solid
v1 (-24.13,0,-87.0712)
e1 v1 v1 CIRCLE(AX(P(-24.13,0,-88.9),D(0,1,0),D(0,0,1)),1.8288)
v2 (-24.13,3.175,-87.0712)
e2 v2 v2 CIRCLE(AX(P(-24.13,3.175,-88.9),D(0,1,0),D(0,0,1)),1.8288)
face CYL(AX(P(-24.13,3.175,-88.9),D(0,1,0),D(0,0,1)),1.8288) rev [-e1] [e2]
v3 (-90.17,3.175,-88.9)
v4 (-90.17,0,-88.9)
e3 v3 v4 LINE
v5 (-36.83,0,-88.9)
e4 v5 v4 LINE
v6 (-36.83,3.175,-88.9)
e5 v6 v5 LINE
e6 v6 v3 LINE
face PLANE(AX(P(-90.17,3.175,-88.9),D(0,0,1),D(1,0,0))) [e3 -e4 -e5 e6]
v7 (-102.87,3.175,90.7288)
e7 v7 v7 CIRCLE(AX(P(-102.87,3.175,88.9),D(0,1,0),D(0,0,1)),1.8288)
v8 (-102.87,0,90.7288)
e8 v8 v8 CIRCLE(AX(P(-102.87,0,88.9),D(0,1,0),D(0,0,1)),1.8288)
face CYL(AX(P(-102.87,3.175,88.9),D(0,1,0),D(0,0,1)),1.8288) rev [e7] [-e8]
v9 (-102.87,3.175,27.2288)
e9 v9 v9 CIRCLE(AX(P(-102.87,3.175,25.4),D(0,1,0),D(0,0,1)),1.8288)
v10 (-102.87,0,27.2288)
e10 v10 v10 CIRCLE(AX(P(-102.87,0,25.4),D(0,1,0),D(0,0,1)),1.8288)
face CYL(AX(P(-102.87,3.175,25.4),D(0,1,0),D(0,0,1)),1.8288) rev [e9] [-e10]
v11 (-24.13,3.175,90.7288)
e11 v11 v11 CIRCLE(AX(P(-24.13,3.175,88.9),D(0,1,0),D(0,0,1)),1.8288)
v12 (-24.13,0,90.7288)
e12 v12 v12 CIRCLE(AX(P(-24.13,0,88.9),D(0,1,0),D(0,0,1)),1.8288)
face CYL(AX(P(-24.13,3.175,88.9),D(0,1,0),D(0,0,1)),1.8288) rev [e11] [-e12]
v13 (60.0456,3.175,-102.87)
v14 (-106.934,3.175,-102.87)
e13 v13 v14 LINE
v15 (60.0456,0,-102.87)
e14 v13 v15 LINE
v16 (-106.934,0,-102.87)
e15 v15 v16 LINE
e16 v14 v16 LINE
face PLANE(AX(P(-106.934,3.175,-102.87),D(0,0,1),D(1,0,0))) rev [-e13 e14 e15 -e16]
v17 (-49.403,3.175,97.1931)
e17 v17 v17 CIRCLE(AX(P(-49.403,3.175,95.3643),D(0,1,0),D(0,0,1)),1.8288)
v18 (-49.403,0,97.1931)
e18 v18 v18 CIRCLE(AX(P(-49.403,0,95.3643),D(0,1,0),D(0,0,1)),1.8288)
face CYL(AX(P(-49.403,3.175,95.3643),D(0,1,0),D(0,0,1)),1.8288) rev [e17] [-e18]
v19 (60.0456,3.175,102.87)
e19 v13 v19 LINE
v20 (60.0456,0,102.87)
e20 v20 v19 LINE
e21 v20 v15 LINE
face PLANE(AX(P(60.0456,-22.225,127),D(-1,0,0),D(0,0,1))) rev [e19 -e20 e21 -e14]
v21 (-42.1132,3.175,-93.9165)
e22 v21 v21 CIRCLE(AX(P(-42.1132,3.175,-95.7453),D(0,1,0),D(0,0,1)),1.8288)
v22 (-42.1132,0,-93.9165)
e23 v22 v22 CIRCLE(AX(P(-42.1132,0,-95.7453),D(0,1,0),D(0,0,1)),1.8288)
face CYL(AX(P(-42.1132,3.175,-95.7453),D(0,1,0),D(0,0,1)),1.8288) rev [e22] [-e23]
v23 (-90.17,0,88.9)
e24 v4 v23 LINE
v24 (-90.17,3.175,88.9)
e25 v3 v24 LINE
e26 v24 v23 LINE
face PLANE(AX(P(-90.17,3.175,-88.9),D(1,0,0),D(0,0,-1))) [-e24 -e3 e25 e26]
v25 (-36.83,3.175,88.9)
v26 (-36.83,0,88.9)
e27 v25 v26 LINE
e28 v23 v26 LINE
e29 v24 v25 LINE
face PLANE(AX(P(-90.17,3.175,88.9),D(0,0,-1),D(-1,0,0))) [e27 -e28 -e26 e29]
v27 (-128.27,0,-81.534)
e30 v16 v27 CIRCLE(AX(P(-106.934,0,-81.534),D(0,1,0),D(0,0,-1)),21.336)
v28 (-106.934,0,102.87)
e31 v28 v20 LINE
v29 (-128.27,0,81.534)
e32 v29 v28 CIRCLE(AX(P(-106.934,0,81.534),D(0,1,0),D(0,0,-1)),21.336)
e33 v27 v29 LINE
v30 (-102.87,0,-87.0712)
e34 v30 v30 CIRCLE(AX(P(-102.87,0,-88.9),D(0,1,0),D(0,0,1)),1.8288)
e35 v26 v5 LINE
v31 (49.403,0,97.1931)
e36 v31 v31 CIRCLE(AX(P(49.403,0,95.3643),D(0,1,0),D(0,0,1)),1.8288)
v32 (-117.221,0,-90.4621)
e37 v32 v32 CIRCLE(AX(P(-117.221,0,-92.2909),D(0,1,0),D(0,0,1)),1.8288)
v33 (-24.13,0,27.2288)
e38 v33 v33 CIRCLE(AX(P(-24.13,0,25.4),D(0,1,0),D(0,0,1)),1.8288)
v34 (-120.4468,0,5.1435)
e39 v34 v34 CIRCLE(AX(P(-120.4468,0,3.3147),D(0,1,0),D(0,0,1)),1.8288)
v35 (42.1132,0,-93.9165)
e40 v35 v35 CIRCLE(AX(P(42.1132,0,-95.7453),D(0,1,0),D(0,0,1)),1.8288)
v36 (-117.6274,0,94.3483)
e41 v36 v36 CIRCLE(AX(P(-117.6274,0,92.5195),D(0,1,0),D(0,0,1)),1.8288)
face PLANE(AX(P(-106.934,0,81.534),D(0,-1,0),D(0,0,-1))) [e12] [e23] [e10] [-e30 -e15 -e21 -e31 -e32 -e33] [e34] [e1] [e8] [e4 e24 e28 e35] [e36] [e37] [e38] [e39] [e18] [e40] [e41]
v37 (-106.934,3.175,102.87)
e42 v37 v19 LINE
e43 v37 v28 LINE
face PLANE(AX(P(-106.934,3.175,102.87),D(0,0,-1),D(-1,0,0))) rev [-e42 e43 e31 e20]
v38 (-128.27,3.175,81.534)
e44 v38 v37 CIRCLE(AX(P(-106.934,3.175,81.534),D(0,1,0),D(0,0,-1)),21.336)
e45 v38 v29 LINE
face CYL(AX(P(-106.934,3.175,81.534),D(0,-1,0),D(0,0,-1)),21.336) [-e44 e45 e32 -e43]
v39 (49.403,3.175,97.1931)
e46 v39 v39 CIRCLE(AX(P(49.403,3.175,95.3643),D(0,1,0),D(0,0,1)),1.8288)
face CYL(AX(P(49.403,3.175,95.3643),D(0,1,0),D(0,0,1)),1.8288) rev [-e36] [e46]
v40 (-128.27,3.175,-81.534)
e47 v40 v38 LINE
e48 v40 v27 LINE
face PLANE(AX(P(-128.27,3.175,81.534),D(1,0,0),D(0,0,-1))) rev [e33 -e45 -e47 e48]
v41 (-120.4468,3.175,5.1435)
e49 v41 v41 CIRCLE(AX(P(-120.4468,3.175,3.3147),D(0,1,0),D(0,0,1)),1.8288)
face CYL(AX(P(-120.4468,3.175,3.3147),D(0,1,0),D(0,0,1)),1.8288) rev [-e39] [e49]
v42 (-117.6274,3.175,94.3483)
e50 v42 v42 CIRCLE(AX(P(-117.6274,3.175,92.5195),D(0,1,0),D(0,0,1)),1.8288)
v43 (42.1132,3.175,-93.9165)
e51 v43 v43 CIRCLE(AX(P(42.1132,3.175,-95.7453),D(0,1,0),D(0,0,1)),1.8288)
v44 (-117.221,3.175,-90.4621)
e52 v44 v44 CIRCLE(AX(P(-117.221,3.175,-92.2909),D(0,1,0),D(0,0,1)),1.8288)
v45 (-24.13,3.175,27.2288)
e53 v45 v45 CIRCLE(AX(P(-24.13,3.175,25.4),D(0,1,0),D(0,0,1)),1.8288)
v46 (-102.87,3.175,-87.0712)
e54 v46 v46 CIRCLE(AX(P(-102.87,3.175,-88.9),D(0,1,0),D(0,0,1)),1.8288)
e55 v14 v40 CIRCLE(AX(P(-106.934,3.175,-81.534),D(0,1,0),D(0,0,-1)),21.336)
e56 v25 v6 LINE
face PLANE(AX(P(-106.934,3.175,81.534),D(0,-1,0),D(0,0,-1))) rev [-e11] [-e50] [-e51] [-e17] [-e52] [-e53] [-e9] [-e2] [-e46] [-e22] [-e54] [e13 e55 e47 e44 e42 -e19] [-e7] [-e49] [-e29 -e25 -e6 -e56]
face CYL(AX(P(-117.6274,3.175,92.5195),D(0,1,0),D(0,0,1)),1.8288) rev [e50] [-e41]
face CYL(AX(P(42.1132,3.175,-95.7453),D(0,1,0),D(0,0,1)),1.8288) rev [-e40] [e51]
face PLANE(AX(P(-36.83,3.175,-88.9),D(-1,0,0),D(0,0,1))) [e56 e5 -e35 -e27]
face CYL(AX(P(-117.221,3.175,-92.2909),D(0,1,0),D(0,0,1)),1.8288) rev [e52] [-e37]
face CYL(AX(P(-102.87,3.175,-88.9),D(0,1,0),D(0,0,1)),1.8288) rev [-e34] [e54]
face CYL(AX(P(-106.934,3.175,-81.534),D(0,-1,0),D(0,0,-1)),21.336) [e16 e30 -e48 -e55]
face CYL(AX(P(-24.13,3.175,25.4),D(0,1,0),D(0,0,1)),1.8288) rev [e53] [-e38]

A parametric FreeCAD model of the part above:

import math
import FreeCAD as App
import Part
import Sketcher
from FreeCAD import Vector
Q = App.Units.Quantity


def add_polygon(sketch, points):
    """Adds a closed chain of lines whose ends are joined by coincident constraints."""
    first, n = sketch.GeometryCount, len(points)
    for a, b in zip(points, points[1:] + points[:1]):
        sketch.addGeometry(Part.LineSegment(App.Vector(*a, 0), App.Vector(*b, 0)), False)
    for i in range(n):
        sketch.addConstraint(Sketcher.Constraint("Coincident", first + i, 2, first + (i + 1) % n, 1))

doc = App.newDocument("Part")
body = doc.addObject("PartDesign::Body", "Body")

# Sketch on XZ plane
sketch1 = body.newObject("Sketcher::SketchObject", "Sketch")
sketch1.AttachmentSupport = (doc.getObject("XZ_Plane"), [""])
sketch1.MapMode = "FlatFace"
sketch1.addGeometry(Part.LineSegment(Vector(-106.934, 102.87, 0), Vector(106.934, 102.87, 0)), False)
sketch1.addGeometry(Part.ArcOfCircle(Part.Circle(Vector(106.934, 81.534, 0), Vector(0, 0, 1), 21.336), math.radians(0), math.radians(90)), False)
sketch1.addGeometry(Part.LineSegment(Vector(128.27, 81.534, 0), Vector(128.27, -81.534, 0)), False)
sketch1.addGeometry(Part.ArcOfCircle(Part.Circle(Vector(106.934, -81.534, 0), Vector(0, 0, 1), 21.336), math.radians(-90), math.radians(0)), False)
sketch1.addGeometry(Part.LineSegment(Vector(106.934, -102.87, 0), Vector(-106.934, -102.87, 0)), False)
sketch1.addGeometry(Part.ArcOfCircle(Part.Circle(Vector(-106.934, -81.534, 0), Vector(0, 0, 1), 21.336), math.radians(-180), math.radians(-90)), False)
sketch1.addGeometry(Part.LineSegment(Vector(-128.27, -81.534, 0), Vector(-128.27, 81.534, 0)), False)
sketch1.addGeometry(Part.ArcOfCircle(Part.Circle(Vector(-106.934, 81.534, 0), Vector(0, 0, 1), 21.336), math.radians(90), math.radians(180)), False)
sketch1.addConstraint(Sketcher.Constraint("Tangent", 0, 2, 1, 2))
sketch1.addConstraint(Sketcher.Constraint("Tangent", 1, 1, 2, 1))
sketch1.addConstraint(Sketcher.Constraint("Tangent", 2, 2, 3, 2))
sketch1.addConstraint(Sketcher.Constraint("Tangent", 3, 1, 4, 1))
sketch1.addConstraint(Sketcher.Constraint("Tangent", 4, 2, 5, 2))
sketch1.addConstraint(Sketcher.Constraint("Tangent", 5, 1, 6, 1))
sketch1.addConstraint(Sketcher.Constraint("Tangent", 6, 2, 7, 2))
sketch1.addConstraint(Sketcher.Constraint("Tangent", 7, 1, 0, 1))
sketch1.addConstraint(Sketcher.Constraint("Horizontal", 0))
sketch1.addConstraint(Sketcher.Constraint("Vertical", 2))
sketch1.addConstraint(Sketcher.Constraint("Horizontal", 4))
sketch1.addConstraint(Sketcher.Constraint("Vertical", 6))
sketch1.addConstraint(Sketcher.Constraint("Equal", 1, 3))
sketch1.addConstraint(Sketcher.Constraint("Equal", 3, 5))
sketch1.addConstraint(Sketcher.Constraint("Equal", 5, 7))
sketch1.addConstraint(Sketcher.Constraint("Symmetric", 1, 3, 5, 3, -1, 1))
sketch1.addConstraint(Sketcher.Constraint("Radius", 1, Q("0.84 in")))
sketch1.addConstraint(Sketcher.Constraint("DistanceX", 0, 1, 0, 2, Q("8.42 in")))
sketch1.addConstraint(Sketcher.Constraint("DistanceY", 2, 2, 2, 1, Q("6.42 in")))
pad1 = body.newObject("PartDesign::Pad", "Pad")
pad1.Profile = sketch1
pad1.Length = Q("0.125 in")
pad1.Reversed = True

# Sketch on XZ plane
sketch2 = body.newObject("Sketcher::SketchObject", "Sketch001")
sketch2.AttachmentSupport = (doc.getObject("XZ_Plane"), [""])
sketch2.MapMode = "FlatFace"
add_polygon(sketch2, [(-90.17, -88.9), (-90.17, 88.9), (-36.83, 88.9), (-36.83, -88.9)])  # lines 0-3
sketch2.addConstraint(Sketcher.Constraint("Vertical", 0))
sketch2.addConstraint(Sketcher.Constraint("Horizontal", 1))
sketch2.addConstraint(Sketcher.Constraint("Vertical", 2))
sketch2.addConstraint(Sketcher.Constraint("Horizontal", 3))
sketch2.addConstraint(Sketcher.Constraint("DistanceY", 0, 1, 0, 2, Q("7 in")))
sketch2.addConstraint(Sketcher.Constraint("DistanceX", 1, 1, 1, 2, Q("2.1 in")))
sketch2.addConstraint(Sketcher.Constraint("DistanceY", -1, 1, 0, 2, Q("3.5 in")))
sketch2.addConstraint(Sketcher.Constraint("DistanceX", 0, 2, -1, 1, Q("3.55 in")))
pocket1 = body.newObject("PartDesign::Pocket", "Pocket")
pocket1.Profile = sketch2
pocket1.Length = Q("0.125 in")

# Sketch on XZ plane
sketch3 = body.newObject("Sketcher::SketchObject", "Sketch002")
sketch3.AttachmentSupport = (doc.getObject("XZ_Plane"), [""])
sketch3.MapMode = "FlatFace"
sketch3.AttachmentOffset = App.Placement(Vector(0, 0, -0.125 * 25.4), App.Rotation())
sketch3.addGeometry(Part.Circle(Vector(-24.13, 25.4, 0), Vector(0, 0, 1), 1.8288), False)
sketch3.addGeometry(Part.Circle(Vector(-24.13, -88.9, 0), Vector(0, 0, 1), 1.8288), False)
sketch3.addGeometry(Part.Circle(Vector(-102.87, -88.9, 0), Vector(0, 0, 1), 1.8288), False)
sketch3.addGeometry(Part.Circle(Vector(-102.87, 25.4, 0), Vector(0, 0, 1), 1.8288), False)
sketch3.addGeometry(Part.Circle(Vector(-102.87, 88.9, 0), Vector(0, 0, 1), 1.8288), False)
sketch3.addGeometry(Part.Circle(Vector(-24.13, 88.9, 0), Vector(0, 0, 1), 1.8288), False)
sketch3.addConstraint(Sketcher.Constraint("Equal", 0, 1))
sketch3.addConstraint(Sketcher.Constraint("Equal", 1, 2))
sketch3.addConstraint(Sketcher.Constraint("Equal", 2, 3))
sketch3.addConstraint(Sketcher.Constraint("Equal", 3, 4))
sketch3.addConstraint(Sketcher.Constraint("Equal", 4, 5))
sketch3.addConstraint(Sketcher.Constraint("Symmetric", 2, 3, 4, 3, -1))
sketch3.addConstraint(Sketcher.Constraint("Symmetric", 1, 3, 5, 3, -1))
sketch3.addConstraint(Sketcher.Constraint("Horizontal", 1, 3, 2, 3))
sketch3.addConstraint(Sketcher.Constraint("Horizontal", 0, 3, 3, 3))
sketch3.addConstraint(Sketcher.Constraint("Vertical", 0, 3, 1, 3))
sketch3.addConstraint(Sketcher.Constraint("Vertical", 2, 3, 3, 3))
sketch3.addConstraint(Sketcher.Constraint("Diameter", 0, Q("0.144 in")))
sketch3.addConstraint(Sketcher.Constraint("DistanceY", -1, 1, 0, 3, Q("1 in")))
sketch3.addConstraint(Sketcher.Constraint("DistanceY", 2, 3, 4, 3, Q("7 in")))
sketch3.addConstraint(Sketcher.Constraint("DistanceX", 2, 3, 1, 3, Q("3.1 in")))
sketch3.addConstraint(Sketcher.Constraint("DistanceX", 0, 3, -1, 1, Q("0.95 in")))
doc.recompute()
hole = body.newObject("PartDesign::Hole", "Hole")
hole.Profile = sketch3
hole.ThreadType = "None"
hole.Diameter = Q("0.144 in")
hole.DepthType = "ThroughAll"
hole.Reversed = True

# Sketch on XZ plane
sketch4 = body.newObject("Sketcher::SketchObject", "Sketch003")
sketch4.AttachmentSupport = (doc.getObject("XZ_Plane"), [""])
sketch4.MapMode = "FlatFace"
sketch4.AttachmentOffset = App.Placement(Vector(0, 0, -0.125 * 25.4), App.Rotation())
sketch4.addGeometry(Part.Circle(Vector(-42.1132, -95.7453, 0), Vector(0, 0, 1), 1.8288), False)
sketch4.addGeometry(Part.Circle(Vector(42.1132, -95.7453, 0), Vector(0, 0, 1), 1.8288), False)
sketch4.addGeometry(Part.Circle(Vector(117.221, -92.2909, 0), Vector(0, 0, 1), 1.8288), False)
sketch4.addGeometry(Part.Circle(Vector(117.6274, 92.5195, 0), Vector(0, 0, 1), 1.8288), False)
sketch4.addGeometry(Part.Circle(Vector(49.403, 95.3643, 0), Vector(0, 0, 1), 1.8288), False)
sketch4.addGeometry(Part.Circle(Vector(120.4468, 3.3147, 0), Vector(0, 0, 1), 1.8288), False)
sketch4.addGeometry(Part.Circle(Vector(-49.403, 95.3643, 0), Vector(0, 0, 1), 1.8288), False)
sketch4.addGeometry(Part.Circle(Vector(-117.6274, 92.5195, 0), Vector(0, 0, 1), 1.8288), False)
sketch4.addGeometry(Part.Circle(Vector(-120.4468, 3.3147, 0), Vector(0, 0, 1), 1.8288), False)
sketch4.addGeometry(Part.Circle(Vector(-117.221, -92.2909, 0), Vector(0, 0, 1), 1.8288), False)
sketch4.addConstraint(Sketcher.Constraint("Equal", 0, 1))
sketch4.addConstraint(Sketcher.Constraint("Equal", 1, 2))
sketch4.addConstraint(Sketcher.Constraint("Equal", 2, 3))
sketch4.addConstraint(Sketcher.Constraint("Equal", 3, 4))
sketch4.addConstraint(Sketcher.Constraint("Equal", 4, 5))
sketch4.addConstraint(Sketcher.Constraint("Equal", 5, 6))
sketch4.addConstraint(Sketcher.Constraint("Equal", 6, 7))
sketch4.addConstraint(Sketcher.Constraint("Equal", 7, 8))
sketch4.addConstraint(Sketcher.Constraint("Equal", 8, 9))
sketch4.addConstraint(Sketcher.Constraint("Symmetric", 0, 3, 1, 3, -2))
sketch4.addConstraint(Sketcher.Constraint("Symmetric", 4, 3, 6, 3, -2))
sketch4.addConstraint(Sketcher.Constraint("Symmetric", 3, 3, 7, 3, -2))
sketch4.addConstraint(Sketcher.Constraint("Symmetric", 5, 3, 8, 3, -2))
sketch4.addConstraint(Sketcher.Constraint("Symmetric", 2, 3, 9, 3, -2))
sketch4.addConstraint(Sketcher.Constraint("Diameter", 0, Q("0.144 in")))
sketch4.addConstraint(Sketcher.Constraint("DistanceY", 1, 3, 5, 3, Q("3.9 in")))
sketch4.addConstraint(Sketcher.Constraint("DistanceX", 0, 3, 5, 3, Q("6.4 in")))
sketch4.addConstraint(Sketcher.Constraint("DistanceX", 4, 3, 2, 3, Q("2.67 in")))
sketch4.addConstraint(Sketcher.Constraint("DistanceX", 6, 3, 4, 3, Q("3.89 in")))
sketch4.addConstraint(Sketcher.Constraint("DistanceX", 0, 3, -1, 1, Q("1.658 in")))
sketch4.addConstraint(Sketcher.Constraint("DistanceX", -1, 1, 3, 3, Q("4.631 in")))
sketch4.addConstraint(Sketcher.Constraint("DistanceY", 1, 3, 2, 3, Q("0.136 in")))
sketch4.addConstraint(Sketcher.Constraint("DistanceY", 2, 3, 3, 3, Q("7.276 in")))
sketch4.addConstraint(Sketcher.Constraint("DistanceY", 3, 3, 4, 3, Q("0.112 in")))
sketch4.addConstraint(Sketcher.Constraint("DistanceY", 0, 3, -1, 1, Q("3.7695 in")))
doc.recompute()
hole2 = body.newObject("PartDesign::Hole", "Hole001")
hole2.Profile = sketch4
hole2.ThreadType = "None"
hole2.Diameter = Q("0.144 in")
hole2.DepthType = "ThroughAll"
hole2.Reversed = True

# Sketch on XZ plane
sketch5 = body.newObject("Sketcher::SketchObject", "Sketch004")
sketch5.AttachmentSupport = (doc.getObject("XZ_Plane"), [""])
sketch5.MapMode = "FlatFace"
sketch5.AttachmentOffset = App.Placement(Vector(0, 0, -0.125 * 25.4), App.Rotation())
add_polygon(sketch5, [(60.0456, -127), (60.0456, 127), (187.0456, 127), (187.0456, -127)])  # lines 0-3
sketch5.addConstraint(Sketcher.Constraint("Vertical", 0))
sketch5.addConstraint(Sketcher.Constraint("Horizontal", 1))
sketch5.addConstraint(Sketcher.Constraint("Vertical", 2))
sketch5.addConstraint(Sketcher.Constraint("Horizontal", 3))
sketch5.addConstraint(Sketcher.Constraint("DistanceX", 1, 1, 1, 2, Q("5 in")))
sketch5.addConstraint(Sketcher.Constraint("DistanceY", 0, 1, 0, 2, Q("10 in")))
sketch5.addConstraint(Sketcher.Constraint("DistanceY", -1, 1, 0, 2, Q("5 in")))
sketch5.addConstraint(Sketcher.Constraint("DistanceX", -1, 1, 0, 2, Q("2.364 in")))
pocket2 = body.newObject("PartDesign::Pocket", "Pocket001")
pocket2.Profile = sketch5
pocket2.Length = Q("1 in")
pocket2.Reversed = True

doc.recompute()
